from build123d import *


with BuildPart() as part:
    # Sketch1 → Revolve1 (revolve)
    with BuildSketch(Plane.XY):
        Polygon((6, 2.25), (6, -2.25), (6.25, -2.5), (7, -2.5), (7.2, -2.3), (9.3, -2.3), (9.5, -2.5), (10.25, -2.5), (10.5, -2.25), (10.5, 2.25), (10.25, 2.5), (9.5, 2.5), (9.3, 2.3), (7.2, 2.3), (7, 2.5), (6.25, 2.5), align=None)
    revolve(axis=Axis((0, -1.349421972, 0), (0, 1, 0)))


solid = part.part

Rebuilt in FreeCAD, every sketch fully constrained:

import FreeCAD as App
import Part
import Sketcher

V = App.Vector

doc = App.newDocument("Part")
body = doc.addObject("PartDesign::Body", "Body")

# Sketch on XY plane
sketch1 = body.newObject("Sketcher::SketchObject", "Sketch")
sketch1.AttachmentSupport = (doc.getObject("XY_Plane"), [""])
sketch1.MapMode = "FlatFace"
sketch1.addGeometry(Part.LineSegment(V(6, 2.25, 0), V(6, -2.25, 0)), False)
sketch1.addGeometry(Part.LineSegment(V(6, -2.25, 0), V(6.25, -2.5, 0)), False)
sketch1.addGeometry(Part.LineSegment(V(6.25, -2.5, 0), V(7, -2.5, 0)), False)
sketch1.addGeometry(Part.LineSegment(V(7, -2.5, 0), V(7.2, -2.3, 0)), False)
sketch1.addGeometry(Part.LineSegment(V(7.2, -2.3, 0), V(9.3, -2.3, 0)), False)
sketch1.addGeometry(Part.LineSegment(V(9.3, -2.3, 0), V(9.5, -2.5, 0)), False)
sketch1.addGeometry(Part.LineSegment(V(9.5, -2.5, 0), V(10.25, -2.5, 0)), False)
sketch1.addGeometry(Part.LineSegment(V(10.25, -2.5, 0), V(10.5, -2.25, 0)), False)
sketch1.addGeometry(Part.LineSegment(V(10.5, -2.25, 0), V(10.5, 2.25, 0)), False)
sketch1.addGeometry(Part.LineSegment(V(10.5, 2.25, 0), V(10.25, 2.5, 0)), False)
sketch1.addGeometry(Part.LineSegment(V(10.25, 2.5, 0), V(9.5, 2.5, 0)), False)
sketch1.addGeometry(Part.LineSegment(V(9.5, 2.5, 0), V(9.3, 2.3, 0)), False)
sketch1.addGeometry(Part.LineSegment(V(9.3, 2.3, 0), V(7.2, 2.3, 0)), False)
sketch1.addGeometry(Part.LineSegment(V(7.2, 2.3, 0), V(7, 2.5, 0)), False)
sketch1.addGeometry(Part.LineSegment(V(7, 2.5, 0), V(6.25, 2.5, 0)), False)
sketch1.addGeometry(Part.LineSegment(V(6.25, 2.5, 0), V(6, 2.25, 0)), False)
sketch1.addConstraint(Sketcher.Constraint("Coincident", 0, 2, 1, 1))
sketch1.addConstraint(Sketcher.Constraint("Coincident", 1, 2, 2, 1))
sketch1.addConstraint(Sketcher.Constraint("Coincident", 2, 2, 3, 1))
sketch1.addConstraint(Sketcher.Constraint("Coincident", 3, 2, 4, 1))
sketch1.addConstraint(Sketcher.Constraint("Coincident", 4, 2, 5, 1))
sketch1.addConstraint(Sketcher.Constraint("Coincident", 5, 2, 6, 1))
sketch1.addConstraint(Sketcher.Constraint("Coincident", 6, 2, 7, 1))
sketch1.addConstraint(Sketcher.Constraint("Coincident", 7, 2, 8, 1))
sketch1.addConstraint(Sketcher.Constraint("Coincident", 8, 2, 9, 1))
sketch1.addConstraint(Sketcher.Constraint("Coincident", 9, 2, 10, 1))
sketch1.addConstraint(Sketcher.Constraint("Coincident", 10, 2, 11, 1))
sketch1.addConstraint(Sketcher.Constraint("Coincident", 11, 2, 12, 1))
sketch1.addConstraint(Sketcher.Constraint("Coincident", 12, 2, 13, 1))
sketch1.addConstraint(Sketcher.Constraint("Coincident", 13, 2, 14, 1))
sketch1.addConstraint(Sketcher.Constraint("Coincident", 14, 2, 15, 1))
sketch1.addConstraint(Sketcher.Constraint("Coincident", 15, 2, 0, 1))
sketch1.addConstraint(Sketcher.Constraint("Vertical", 0))
sketch1.addConstraint(Sketcher.Constraint("Horizontal", 2))
sketch1.addConstraint(Sketcher.Constraint("Horizontal", 4))
sketch1.addConstraint(Sketcher.Constraint("Horizontal", 6))
sketch1.addConstraint(Sketcher.Constraint("Vertical", 8))
sketch1.addConstraint(Sketcher.Constraint("Horizontal", 10))
sketch1.addConstraint(Sketcher.Constraint("Horizontal", 12))
sketch1.addConstraint(Sketcher.Constraint("Horizontal", 14))
sketch1.addConstraint(Sketcher.Constraint("Symmetric", 6, 2, 9, 2, -1))
sketch1.addConstraint(Sketcher.Constraint("Symmetric", 4, 2, 11, 2, -1))
sketch1.addConstraint(Sketcher.Constraint("Symmetric", 2, 2, 13, 2, -1))
sketch1.addConstraint(Sketcher.Constraint("Perpendicular", 1, 3))
sketch1.addConstraint(Sketcher.Constraint("Perpendicular", 3, 5))
sketch1.addConstraint(Sketcher.Constraint("Perpendicular", 5, 7))
sketch1.addConstraint(Sketcher.Constraint("Perpendicular", 7, 9))
sketch1.addConstraint(Sketcher.Constraint("Perpendicular", 9, 11))
sketch1.addConstraint(Sketcher.Constraint("Perpendicular", 11, 13))
sketch1.addConstraint(Sketcher.Constraint("Perpendicular", 13, 15))
sketch1.addConstraint(Sketcher.Constraint("Horizontal", 2, 2, 5, 2))
sketch1.addConstraint(Sketcher.Constraint("Horizontal", 0, 2, 7, 2))
sketch1.addConstraint(Sketcher.Constraint("Horizontal", 8, 2, 15, 2))
sketch1.addConstraint(Sketcher.Constraint("Vertical", 5, 2, 10, 2))
sketch1.addConstraint(Sketcher.Constraint("Equal", 2, 6))
sketch1.addConstraint(Sketcher.Constraint("DistanceX", 4, 1, 4, 2, 2.1))
sketch1.addConstraint(Sketcher.Constraint("DistanceY", 0, 2, 0, 1, 4.5))
sketch1.addConstraint(Sketcher.Constraint("DistanceX", -1, 1, 0, 2, 6.0))
sketch1.addConstraint(Sketcher.Constraint("DistanceX", -1, 1, 2, 2, 7.0))
sketch1.addConstraint(Sketcher.Constraint("DistanceX", 1, 2, 6, 2, 4.0))
sketch1.addConstraint(Sketcher.Constraint("DistanceY", 6, 2, 9, 2, 5.0))
revolution = body.newObject("PartDesign::Revolution", "Revolution")
revolution.Profile = sketch1
revolution.ReferenceAxis = (sketch1, ["V_Axis"])
revolution.Angle = 360

doc.recompute()
